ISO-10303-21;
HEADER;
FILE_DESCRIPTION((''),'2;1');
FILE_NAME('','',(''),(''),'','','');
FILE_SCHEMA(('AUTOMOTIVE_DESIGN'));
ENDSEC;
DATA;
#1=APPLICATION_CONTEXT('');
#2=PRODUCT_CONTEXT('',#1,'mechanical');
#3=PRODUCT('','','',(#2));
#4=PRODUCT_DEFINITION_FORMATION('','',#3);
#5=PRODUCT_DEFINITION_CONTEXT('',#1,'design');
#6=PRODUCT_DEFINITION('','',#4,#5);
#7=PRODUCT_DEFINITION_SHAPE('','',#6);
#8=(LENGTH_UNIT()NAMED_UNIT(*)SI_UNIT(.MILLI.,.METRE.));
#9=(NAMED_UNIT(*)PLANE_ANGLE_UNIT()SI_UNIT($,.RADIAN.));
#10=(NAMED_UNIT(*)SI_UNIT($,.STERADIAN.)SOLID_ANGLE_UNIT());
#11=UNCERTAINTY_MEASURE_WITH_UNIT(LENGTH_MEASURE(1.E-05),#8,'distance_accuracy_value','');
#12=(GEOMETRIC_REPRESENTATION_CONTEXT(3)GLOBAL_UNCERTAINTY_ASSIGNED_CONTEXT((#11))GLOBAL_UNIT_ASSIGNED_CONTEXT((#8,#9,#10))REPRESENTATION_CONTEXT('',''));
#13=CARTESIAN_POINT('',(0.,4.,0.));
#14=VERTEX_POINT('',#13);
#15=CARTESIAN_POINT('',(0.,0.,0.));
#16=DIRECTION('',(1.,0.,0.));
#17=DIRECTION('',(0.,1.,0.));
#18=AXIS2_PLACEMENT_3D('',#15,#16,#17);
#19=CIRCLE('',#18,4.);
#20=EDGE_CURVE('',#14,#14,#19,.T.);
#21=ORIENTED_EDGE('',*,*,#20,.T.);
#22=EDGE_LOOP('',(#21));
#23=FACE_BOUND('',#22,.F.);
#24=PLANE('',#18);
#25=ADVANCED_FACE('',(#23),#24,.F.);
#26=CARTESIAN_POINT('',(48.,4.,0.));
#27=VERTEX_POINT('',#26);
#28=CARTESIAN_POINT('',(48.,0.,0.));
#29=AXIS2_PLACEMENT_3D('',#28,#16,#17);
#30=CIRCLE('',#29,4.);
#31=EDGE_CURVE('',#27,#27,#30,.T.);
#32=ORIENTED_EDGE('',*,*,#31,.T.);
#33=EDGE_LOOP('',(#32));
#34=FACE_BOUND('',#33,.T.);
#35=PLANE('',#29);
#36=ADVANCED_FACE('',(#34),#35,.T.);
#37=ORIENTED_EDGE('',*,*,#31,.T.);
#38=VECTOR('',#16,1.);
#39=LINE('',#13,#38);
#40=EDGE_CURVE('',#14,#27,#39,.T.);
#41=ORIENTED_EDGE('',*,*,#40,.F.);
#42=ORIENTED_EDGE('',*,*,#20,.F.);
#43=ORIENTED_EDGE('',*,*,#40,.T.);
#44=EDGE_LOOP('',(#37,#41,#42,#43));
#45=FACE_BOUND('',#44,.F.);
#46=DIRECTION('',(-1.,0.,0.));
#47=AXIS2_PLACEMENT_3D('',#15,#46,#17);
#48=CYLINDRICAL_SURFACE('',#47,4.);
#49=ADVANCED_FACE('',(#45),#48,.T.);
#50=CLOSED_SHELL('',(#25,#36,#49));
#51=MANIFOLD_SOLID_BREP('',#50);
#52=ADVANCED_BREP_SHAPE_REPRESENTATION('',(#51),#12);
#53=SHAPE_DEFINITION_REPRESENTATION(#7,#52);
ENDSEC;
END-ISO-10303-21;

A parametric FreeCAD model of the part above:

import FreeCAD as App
import Part
import Sketcher
from FreeCAD import Vector

doc = App.newDocument("Part")
params = doc.addObject("Spreadsheet::Sheet", "Params")
for row, (alias, value) in enumerate([
    ("sketch1_diameter", "8 mm"),
    ("pad1_length", "48 mm"),
], start=1):
    params.set(f"A{row}", alias)
    params.set(f"B{row}", "=" + value)
    params.setAlias(f"B{row}", alias)

body = doc.addObject("PartDesign::Body", "Body")

sketch1 = body.newObject("Sketcher::SketchObject", "Sketch")
sketch1.AttachmentSupport = (doc.getObject("YZ_Plane"), [""])
sketch1.MapMode = "FlatFace"
sketch1.addGeometry(Part.Circle(Vector(0, 0, 0), Vector(0, 0, 1), 4), False)
sketch1.addConstraint(Sketcher.Constraint("Coincident", 0, 3, -1, 1))
sketch1.addConstraint(Sketcher.Constraint("Diameter", 0, 8.0))
sketch1.setExpression("Constraints[1]", "Params.sketch1_diameter")
pad1 = body.newObject("PartDesign::Pad", "Pad")
pad1.Profile = sketch1
pad1.setExpression("Length", "Params.pad1_length")

doc.recompute()
